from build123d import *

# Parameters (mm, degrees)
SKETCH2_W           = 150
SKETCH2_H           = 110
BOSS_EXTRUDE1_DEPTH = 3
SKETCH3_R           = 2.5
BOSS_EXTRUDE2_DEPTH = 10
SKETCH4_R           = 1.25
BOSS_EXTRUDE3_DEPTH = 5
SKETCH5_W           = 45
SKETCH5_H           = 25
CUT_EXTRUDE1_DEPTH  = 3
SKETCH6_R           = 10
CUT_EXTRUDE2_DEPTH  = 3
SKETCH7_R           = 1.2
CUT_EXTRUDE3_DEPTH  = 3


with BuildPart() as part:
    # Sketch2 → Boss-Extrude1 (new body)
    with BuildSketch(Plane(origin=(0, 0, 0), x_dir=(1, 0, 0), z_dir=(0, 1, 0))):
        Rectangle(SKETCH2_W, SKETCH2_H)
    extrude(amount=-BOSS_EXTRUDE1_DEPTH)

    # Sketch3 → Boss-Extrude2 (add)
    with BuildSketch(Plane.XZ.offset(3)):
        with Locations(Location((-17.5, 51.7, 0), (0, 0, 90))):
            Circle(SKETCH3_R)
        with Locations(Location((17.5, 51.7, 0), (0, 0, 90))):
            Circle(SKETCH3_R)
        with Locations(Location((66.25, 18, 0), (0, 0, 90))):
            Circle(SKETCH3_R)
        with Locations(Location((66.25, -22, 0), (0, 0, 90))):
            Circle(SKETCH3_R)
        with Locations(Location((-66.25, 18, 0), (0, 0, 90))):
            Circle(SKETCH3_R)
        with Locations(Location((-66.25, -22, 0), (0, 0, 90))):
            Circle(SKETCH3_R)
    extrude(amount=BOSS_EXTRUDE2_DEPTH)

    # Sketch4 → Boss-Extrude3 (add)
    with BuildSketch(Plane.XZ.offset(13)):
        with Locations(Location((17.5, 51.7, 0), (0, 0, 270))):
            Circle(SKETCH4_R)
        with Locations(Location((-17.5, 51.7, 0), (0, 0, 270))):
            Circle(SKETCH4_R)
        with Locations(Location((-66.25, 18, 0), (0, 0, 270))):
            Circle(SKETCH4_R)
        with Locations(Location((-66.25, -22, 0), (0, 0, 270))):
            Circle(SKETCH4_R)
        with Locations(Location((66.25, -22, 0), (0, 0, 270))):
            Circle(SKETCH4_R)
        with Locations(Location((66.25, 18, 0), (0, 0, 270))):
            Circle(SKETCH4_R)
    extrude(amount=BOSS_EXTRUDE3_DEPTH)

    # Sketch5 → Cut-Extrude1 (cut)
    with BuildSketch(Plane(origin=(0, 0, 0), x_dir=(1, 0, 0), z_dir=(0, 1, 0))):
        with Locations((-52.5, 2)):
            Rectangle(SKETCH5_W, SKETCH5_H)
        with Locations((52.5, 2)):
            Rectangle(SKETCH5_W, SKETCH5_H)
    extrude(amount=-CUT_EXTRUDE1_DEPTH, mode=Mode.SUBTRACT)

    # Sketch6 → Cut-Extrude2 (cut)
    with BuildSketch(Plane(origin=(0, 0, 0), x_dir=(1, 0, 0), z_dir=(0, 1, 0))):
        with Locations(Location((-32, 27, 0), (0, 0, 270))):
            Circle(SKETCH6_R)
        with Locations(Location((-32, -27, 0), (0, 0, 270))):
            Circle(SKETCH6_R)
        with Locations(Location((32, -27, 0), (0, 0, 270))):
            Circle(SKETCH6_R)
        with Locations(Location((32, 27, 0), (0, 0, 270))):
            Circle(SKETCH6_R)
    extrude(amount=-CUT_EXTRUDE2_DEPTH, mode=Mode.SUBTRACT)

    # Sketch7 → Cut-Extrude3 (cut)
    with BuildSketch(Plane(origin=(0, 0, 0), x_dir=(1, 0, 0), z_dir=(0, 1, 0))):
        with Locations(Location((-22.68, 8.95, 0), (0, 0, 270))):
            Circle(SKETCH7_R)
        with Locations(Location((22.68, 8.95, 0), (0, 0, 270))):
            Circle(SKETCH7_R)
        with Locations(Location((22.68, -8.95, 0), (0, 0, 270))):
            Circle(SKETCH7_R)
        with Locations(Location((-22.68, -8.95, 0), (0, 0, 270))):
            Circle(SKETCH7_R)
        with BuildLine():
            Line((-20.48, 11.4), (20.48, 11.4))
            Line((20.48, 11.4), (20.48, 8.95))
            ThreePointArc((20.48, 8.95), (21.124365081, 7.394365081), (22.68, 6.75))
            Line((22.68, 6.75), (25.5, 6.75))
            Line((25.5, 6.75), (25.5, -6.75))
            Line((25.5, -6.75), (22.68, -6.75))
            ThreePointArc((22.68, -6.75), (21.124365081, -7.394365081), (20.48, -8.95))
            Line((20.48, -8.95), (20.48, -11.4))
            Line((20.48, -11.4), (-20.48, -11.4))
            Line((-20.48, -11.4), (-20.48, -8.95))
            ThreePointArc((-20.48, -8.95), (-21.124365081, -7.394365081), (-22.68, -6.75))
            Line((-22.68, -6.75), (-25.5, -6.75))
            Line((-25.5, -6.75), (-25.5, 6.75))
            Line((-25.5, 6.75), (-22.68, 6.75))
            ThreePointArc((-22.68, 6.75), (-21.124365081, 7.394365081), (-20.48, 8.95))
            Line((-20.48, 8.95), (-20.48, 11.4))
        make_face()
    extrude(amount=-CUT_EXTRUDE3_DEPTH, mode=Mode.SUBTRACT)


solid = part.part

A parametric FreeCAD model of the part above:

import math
import FreeCAD as App
import Part
import Sketcher

V = App.Vector


def add_polygon(sketch, points):
    """Adds a closed chain of lines whose ends are joined by coincident constraints."""
    first, n = sketch.GeometryCount, len(points)
    for a, b in zip(points, points[1:] + points[:1]):
        sketch.addGeometry(Part.LineSegment(App.Vector(*a, 0), App.Vector(*b, 0)), False)
    for i in range(n):
        sketch.addConstraint(Sketcher.Constraint("Coincident", first + i, 2, first + (i + 1) % n, 1))

doc = App.newDocument("Part")
params = doc.addObject("Spreadsheet::Sheet", "Params")
for row, (alias, value) in enumerate([
    ("sketch1_width", "150 mm"),
    ("sketch1_height", "110 mm"),
    ("pad1_length", "3 mm"),
    ("sketch2_diameter", "5 mm"),
    ("pad2_length", "10 mm"),
    ("sketch3_diameter", "2.5 mm"),
    ("pad3_length", "5 mm"),
    ("sketch4_width", "45 mm"),
    ("sketch4_height", "25 mm"),
    ("pocket1_length", "3 mm"),
    ("sketch5_diameter", "20 mm"),
    ("pocket2_length", "3 mm"),
    ("sketch6_diameter", "2.4 mm"),
    ("sketch6_radius", "2.2 mm"),
    ("sketch6_height", "13.5 mm"),
    ("sketch6_width", "40.96 mm"),
    ("sketch6_width2", "2.82 mm"),
    ("pocket3_length", "3 mm"),
], start=1):
    params.set(f"A{row}", alias)
    params.set(f"B{row}", "=" + value)
    params.setAlias(f"B{row}", alias)

body = doc.addObject("PartDesign::Body", "Body")

# Sketch on XZ plane
sketch1 = body.newObject("Sketcher::SketchObject", "Sketch")
sketch1.AttachmentSupport = (doc.getObject("XZ_Plane"), [""])
sketch1.MapMode = "FlatFace"
add_polygon(sketch1, [(-75, -55), (-75, 55), (75, 55), (75, -55)])  # lines 0-3
sketch1.addConstraint(Sketcher.Constraint("Vertical", 0))
sketch1.addConstraint(Sketcher.Constraint("Horizontal", 1))
sketch1.addConstraint(Sketcher.Constraint("Vertical", 2))
sketch1.addConstraint(Sketcher.Constraint("Horizontal", 3))
sketch1.addConstraint(Sketcher.Constraint("Symmetric", 0, 2, 2, 2, -1, 1))
sketch1.addConstraint(Sketcher.Constraint("DistanceX", 1, 1, 1, 2, 150.0))
sketch1.addConstraint(Sketcher.Constraint("DistanceY", 0, 1, 0, 2, 110.0))
sketch1.setExpression("Constraints[9]", "Params.sketch1_width")
sketch1.setExpression("Constraints[10]", "Params.sketch1_height")
pad1 = body.newObject("PartDesign::Pad", "Pad")
pad1.Profile = sketch1
pad1.setExpression("Length", "Params.pad1_length")

# Sketch on XZ plane
sketch2 = body.newObject("Sketcher::SketchObject", "Sketch001")
sketch2.AttachmentSupport = (doc.getObject("XZ_Plane"), [""])
sketch2.MapMode = "FlatFace"
sketch2.AttachmentOffset = App.Placement(V(0, 0, 3), App.Rotation())
sketch2.addGeometry(Part.Circle(V(-17.5, 51.7, 0), V(0, 0, 1), 2.5), False)
sketch2.addGeometry(Part.Circle(V(17.5, 51.7, 0), V(0, 0, 1), 2.5), False)
sketch2.addGeometry(Part.Circle(V(66.25, 18, 0), V(0, 0, 1), 2.5), False)
sketch2.addGeometry(Part.Circle(V(66.25, -22, 0), V(0, 0, 1), 2.5), False)
sketch2.addGeometry(Part.Circle(V(-66.25, 18, 0), V(0, 0, 1), 2.5), False)
sketch2.addGeometry(Part.Circle(V(-66.25, -22, 0), V(0, 0, 1), 2.5), False)
sketch2.addConstraint(Sketcher.Constraint("Equal", 0, 1))
sketch2.addConstraint(Sketcher.Constraint("Equal", 1, 2))
sketch2.addConstraint(Sketcher.Constraint("Equal", 2, 3))
sketch2.addConstraint(Sketcher.Constraint("Equal", 3, 4))
sketch2.addConstraint(Sketcher.Constraint("Equal", 4, 5))
sketch2.addConstraint(Sketcher.Constraint("Symmetric", 0, 3, 1, 3, -2))
sketch2.addConstraint(Sketcher.Constraint("Symmetric", 2, 3, 4, 3, -2))
sketch2.addConstraint(Sketcher.Constraint("Symmetric", 3, 3, 5, 3, -2))
sketch2.addConstraint(Sketcher.Constraint("Vertical", 2, 3, 3, 3))
sketch2.addConstraint(Sketcher.Constraint("Diameter", 0, 5.0))
sketch2.addConstraint(Sketcher.Constraint("DistanceY", -1, 1, 2, 3, 18.0))
sketch2.addConstraint(Sketcher.Constraint("DistanceY", 3, 3, -1, 1, 22.0))
sketch2.addConstraint(Sketcher.Constraint("DistanceX", 0, 3, 1, 3, 35.0))
sketch2.addConstraint(Sketcher.Constraint("DistanceY", -1, 1, 0, 3, 51.7))
sketch2.addConstraint(Sketcher.Constraint("DistanceX", 4, 3, 2, 3, 132.5))
sketch2.setExpression("Constraints[9]", "Params.sketch2_diameter")
pad2 = body.newObject("PartDesign::Pad", "Pad001")
pad2.Profile = sketch2
pad2.setExpression("Length", "Params.pad2_length")

# Sketch on XZ plane
sketch3 = body.newObject("Sketcher::SketchObject", "Sketch002")
sketch3.AttachmentSupport = (doc.getObject("XZ_Plane"), [""])
sketch3.MapMode = "FlatFace"
sketch3.AttachmentOffset = App.Placement(V(0, 0, 13), App.Rotation())
sketch3.addGeometry(Part.Circle(V(17.5, 51.7, 0), V(0, 0, 1), 1.25), False)
sketch3.addGeometry(Part.Circle(V(-17.5, 51.7, 0), V(0, 0, 1), 1.25), False)
sketch3.addGeometry(Part.Circle(V(-66.25, 18, 0), V(0, 0, 1), 1.25), False)
sketch3.addGeometry(Part.Circle(V(-66.25, -22, 0), V(0, 0, 1), 1.25), False)
sketch3.addGeometry(Part.Circle(V(66.25, -22, 0), V(0, 0, 1), 1.25), False)
sketch3.addGeometry(Part.Circle(V(66.25, 18, 0), V(0, 0, 1), 1.25), False)
sketch3.addConstraint(Sketcher.Constraint("Equal", 0, 1))
sketch3.addConstraint(Sketcher.Constraint("Equal", 1, 2))
sketch3.addConstraint(Sketcher.Constraint("Equal", 2, 3))
sketch3.addConstraint(Sketcher.Constraint("Equal", 3, 4))
sketch3.addConstraint(Sketcher.Constraint("Equal", 4, 5))
sketch3.addConstraint(Sketcher.Constraint("Symmetric", 0, 3, 1, 3, -2))
sketch3.addConstraint(Sketcher.Constraint("Symmetric", 3, 3, 4, 3, -2))
sketch3.addConstraint(Sketcher.Constraint("Symmetric", 2, 3, 5, 3, -2))
sketch3.addConstraint(Sketcher.Constraint("Vertical", 2, 3, 3, 3))
sketch3.addConstraint(Sketcher.Constraint("Diameter", 0, 2.5))
sketch3.addConstraint(Sketcher.Constraint("DistanceY", -1, 1, 2, 3, 18.0))
sketch3.addConstraint(Sketcher.Constraint("DistanceY", 3, 3, -1, 1, 22.0))
sketch3.addConstraint(Sketcher.Constraint("DistanceX", 1, 3, 0, 3, 35.0))
sketch3.addConstraint(Sketcher.Constraint("DistanceY", -1, 1, 0, 3, 51.7))
sketch3.addConstraint(Sketcher.Constraint("DistanceX", 3, 3, 4, 3, 132.5))
sketch3.setExpression("Constraints[9]", "Params.sketch3_diameter")
pad3 = body.newObject("PartDesign::Pad", "Pad002")
pad3.Profile = sketch3
pad3.setExpression("Length", "Params.pad3_length")

# Sketch on XZ plane
sketch4 = body.newObject("Sketcher::SketchObject", "Sketch003")
sketch4.AttachmentSupport = (doc.getObject("XZ_Plane"), [""])
sketch4.MapMode = "FlatFace"
add_polygon(sketch4, [(-75, -14.5), (-75, 10.5), (-30, 10.5), (-30, -14.5)])  # lines 0-3
add_polygon(sketch4, [(30, -14.5), (30, 10.5), (75, 10.5), (75, -14.5)])  # lines 4-7
sketch4.addConstraint(Sketcher.Constraint("Vertical", 0))
sketch4.addConstraint(Sketcher.Constraint("Horizontal", 1))
sketch4.addConstraint(Sketcher.Constraint("Vertical", 2))
sketch4.addConstraint(Sketcher.Constraint("Horizontal", 3))
sketch4.addConstraint(Sketcher.Constraint("Vertical", 4))
sketch4.addConstraint(Sketcher.Constraint("Horizontal", 5))
sketch4.addConstraint(Sketcher.Constraint("Vertical", 6))
sketch4.addConstraint(Sketcher.Constraint("Horizontal", 7))
sketch4.addConstraint(Sketcher.Constraint("Symmetric", 1, 2, 4, 2, -2))
sketch4.addConstraint(Sketcher.Constraint("Symmetric", 3, 2, 6, 2, -2))
sketch4.addConstraint(Sketcher.Constraint("DistanceX", 1, 1, 1, 2, 45.0))
sketch4.addConstraint(Sketcher.Constraint("DistanceY", 0, 1, 0, 2, 25.0))
sketch4.addConstraint(Sketcher.Constraint("DistanceX", 0, 2, -1, 1, 75.0))
sketch4.addConstraint(Sketcher.Constraint("DistanceY", -1, 1, 0, 2, 10.5))
sketch4.setExpression("Constraints[18]", "Params.sketch4_width")
sketch4.setExpression("Constraints[19]", "Params.sketch4_height")
pocket1 = body.newObject("PartDesign::Pocket", "Pocket")
pocket1.Profile = sketch4
pocket1.setExpression("Length", "Params.pocket1_length")
pocket1.Reversed = True

# Sketch on XZ plane
sketch5 = body.newObject("Sketcher::SketchObject", "Sketch004")
sketch5.AttachmentSupport = (doc.getObject("XZ_Plane"), [""])
sketch5.MapMode = "FlatFace"
sketch5.addGeometry(Part.Circle(V(-32, -27, 0), V(0, 0, 1), 10), False)
sketch5.addGeometry(Part.Circle(V(-32, 27, 0), V(0, 0, 1), 10), False)
sketch5.addGeometry(Part.Circle(V(32, 27, 0), V(0, 0, 1), 10), False)
sketch5.addGeometry(Part.Circle(V(32, -27, 0), V(0, 0, 1), 10), False)
sketch5.addConstraint(Sketcher.Constraint("Equal", 0, 1))
sketch5.addConstraint(Sketcher.Constraint("Equal", 1, 2))
sketch5.addConstraint(Sketcher.Constraint("Equal", 2, 3))
sketch5.addConstraint(Sketcher.Constraint("Symmetric", 0, 3, 2, 3, -1, 1))
sketch5.addConstraint(Sketcher.Constraint("Symmetric", 1, 3, 3, 3, -1, 1))
sketch5.addConstraint(Sketcher.Constraint("Symmetric", 1, 3, 2, 3, -2))
sketch5.addConstraint(Sketcher.Constraint("Diameter", 0, 20.0))
sketch5.addConstraint(Sketcher.Constraint("DistanceX", 0, 3, -1, 1, 32.0))
sketch5.addConstraint(Sketcher.Constraint("DistanceY", 0, 3, -1, 1, 27.0))
sketch5.setExpression("Constraints[6]", "Params.sketch5_diameter")
pocket2 = body.newObject("PartDesign::Pocket", "Pocket001")
pocket2.Profile = sketch5
pocket2.setExpression("Length", "Params.pocket2_length")
pocket2.Reversed = True

# Sketch on XZ plane
sketch6 = body.newObject("Sketcher::SketchObject", "Sketch005")
sketch6.AttachmentSupport = (doc.getObject("XZ_Plane"), [""])
sketch6.MapMode = "FlatFace"
sketch6.addGeometry(Part.Circle(V(-22.68, -8.95, 0), V(0, 0, 1), 1.2), False)
sketch6.addGeometry(Part.Circle(V(22.68, -8.95, 0), V(0, 0, 1), 1.2), False)
sketch6.addGeometry(Part.Circle(V(22.68, 8.95, 0), V(0, 0, 1), 1.2), False)
sketch6.addGeometry(Part.Circle(V(-22.68, 8.95, 0), V(0, 0, 1), 1.2), False)
sketch6.addGeometry(Part.LineSegment(V(20.48, -11.4, 0), V(-20.48, -11.4, 0)), False)
sketch6.addGeometry(Part.LineSegment(V(-20.48, -11.4, 0), V(-20.48, -8.95, 0)), False)
sketch6.addGeometry(Part.ArcOfCircle(Part.Circle(V(-22.68, -8.95, 0), V(0, 0, 1), 2.2), math.radians(0), math.radians(90)), False)
sketch6.addGeometry(Part.LineSegment(V(-22.68, -6.75, 0), V(-25.5, -6.75, 0)), False)
sketch6.addGeometry(Part.LineSegment(V(-25.5, -6.75, 0), V(-25.5, 6.75, 0)), False)
sketch6.addGeometry(Part.LineSegment(V(-25.5, 6.75, 0), V(-22.68, 6.75, 0)), False)
sketch6.addGeometry(Part.ArcOfCircle(Part.Circle(V(-22.68, 8.95, 0), V(0, 0, 1), 2.2), math.radians(-90), math.radians(0)), False)
sketch6.addGeometry(Part.LineSegment(V(-20.48, 8.95, 0), V(-20.48, 11.4, 0)), False)
sketch6.addGeometry(Part.LineSegment(V(-20.48, 11.4, 0), V(20.48, 11.4, 0)), False)
sketch6.addGeometry(Part.LineSegment(V(20.48, 11.4, 0), V(20.48, 8.95, 0)), False)
sketch6.addGeometry(Part.ArcOfCircle(Part.Circle(V(22.68, 8.95, 0), V(0, 0, 1), 2.2), math.radians(180), math.radians(270)), False)
sketch6.addGeometry(Part.LineSegment(V(22.68, 6.75, 0), V(25.5, 6.75, 0)), False)
sketch6.addGeometry(Part.LineSegment(V(25.5, 6.75, 0), V(25.5, -6.75, 0)), False)
sketch6.addGeometry(Part.LineSegment(V(25.5, -6.75, 0), V(22.68, -6.75, 0)), False)
sketch6.addGeometry(Part.ArcOfCircle(Part.Circle(V(22.68, -8.95, 0), V(0, 0, 1), 2.2), math.radians(90), math.radians(180)), False)
sketch6.addGeometry(Part.LineSegment(V(20.48, -8.95, 0), V(20.48, -11.4, 0)), False)
sketch6.addConstraint(Sketcher.Constraint("Coincident", 4, 2, 5, 1))
sketch6.addConstraint(Sketcher.Constraint("Tangent", 5, 2, 6, 1))
sketch6.addConstraint(Sketcher.Constraint("Tangent", 6, 2, 7, 1))
sketch6.addConstraint(Sketcher.Constraint("Coincident", 7, 2, 8, 1))
sketch6.addConstraint(Sketcher.Constraint("Coincident", 8, 2, 9, 1))
sketch6.addConstraint(Sketcher.Constraint("Tangent", 9, 2, 10, 1))
sketch6.addConstraint(Sketcher.Constraint("Tangent", 10, 2, 11, 1))
sketch6.addConstraint(Sketcher.Constraint("Coincident", 11, 2, 12, 1))
sketch6.addConstraint(Sketcher.Constraint("Coincident", 12, 2, 13, 1))
sketch6.addConstraint(Sketcher.Constraint("Tangent", 13, 2, 14, 1))
sketch6.addConstraint(Sketcher.Constraint("Tangent", 14, 2, 15, 1))
sketch6.addConstraint(Sketcher.Constraint("Coincident", 15, 2, 16, 1))
sketch6.addConstraint(Sketcher.Constraint("Coincident", 16, 2, 17, 1))
sketch6.addConstraint(Sketcher.Constraint("Tangent", 17, 2, 18, 1))
sketch6.addConstraint(Sketcher.Constraint("Tangent", 18, 2, 19, 1))
sketch6.addConstraint(Sketcher.Constraint("Coincident", 19, 2, 4, 1))
sketch6.addConstraint(Sketcher.Constraint("Horizontal", 4))
sketch6.addConstraint(Sketcher.Constraint("Vertical", 5))
sketch6.addConstraint(Sketcher.Constraint("Horizontal", 7))
sketch6.addConstraint(Sketcher.Constraint("Vertical", 8))
sketch6.addConstraint(Sketcher.Constraint("Horizontal", 9))
sketch6.addConstraint(Sketcher.Constraint("Vertical", 11))
sketch6.addConstraint(Sketcher.Constraint("Horizontal", 12))
sketch6.addConstraint(Sketcher.Constraint("Vertical", 13))
sketch6.addConstraint(Sketcher.Constraint("Horizontal", 15))
sketch6.addConstraint(Sketcher.Constraint("Vertical", 16))
sketch6.addConstraint(Sketcher.Constraint("Horizontal", 17))
sketch6.addConstraint(Sketcher.Constraint("Vertical", 19))
sketch6.addConstraint(Sketcher.Constraint("Coincident", 6, 3, 0, 3))
sketch6.addConstraint(Sketcher.Constraint("Coincident", 10, 3, 3, 3))
sketch6.addConstraint(Sketcher.Constraint("Coincident", 14, 3, 2, 3))
sketch6.addConstraint(Sketcher.Constraint("Coincident", 18, 3, 1, 3))
sketch6.addConstraint(Sketcher.Constraint("Equal", 0, 1))
sketch6.addConstraint(Sketcher.Constraint("Equal", 1, 2))
sketch6.addConstraint(Sketcher.Constraint("Equal", 2, 3))
sketch6.addConstraint(Sketcher.Constraint("Equal", 6, 10))
sketch6.addConstraint(Sketcher.Constraint("Equal", 10, 14))
sketch6.addConstraint(Sketcher.Constraint("Equal", 14, 18))
sketch6.addConstraint(Sketcher.Constraint("Symmetric", 0, 3, 2, 3, -1, 1))
sketch6.addConstraint(Sketcher.Constraint("Symmetric", 1, 3, 3, 3, -1, 1))
sketch6.addConstraint(Sketcher.Constraint("Symmetric", 0, 3, 1, 3, -2))
sketch6.addConstraint(Sketcher.Constraint("Equal", 9, 15))
sketch6.addConstraint(Sketcher.Constraint("Equal", 5, 11))
sketch6.addConstraint(Sketcher.Constraint("Diameter", 0, 2.4))
sketch6.addConstraint(Sketcher.Constraint("Radius", 6, 2.2))
sketch6.addConstraint(Sketcher.Constraint("DistanceY", 8, 1, 8, 2, 13.5))
sketch6.addConstraint(Sketcher.Constraint("DistanceX", 4, 2, 4, 1, 40.96))
sketch6.addConstraint(Sketcher.Constraint("DistanceX", 7, 2, 7, 1, 2.82))
sketch6.addConstraint(Sketcher.Constraint("DistanceY", 5, 1, 5, 2, 2.45))
sketch6.setExpression("Constraints[43]", "Params.sketch6_diameter")
sketch6.setExpression("Constraints[44]", "Params.sketch6_radius")
sketch6.setExpression("Constraints[45]", "Params.sketch6_height")
sketch6.setExpression("Constraints[46]", "Params.sketch6_width")
sketch6.setExpression("Constraints[47]", "Params.sketch6_width2")
pocket3 = body.newObject("PartDesign::Pocket", "Pocket002")
pocket3.Profile = sketch6
pocket3.setExpression("Length", "Params.pocket3_length")
pocket3.Reversed = True

doc.recompute()
